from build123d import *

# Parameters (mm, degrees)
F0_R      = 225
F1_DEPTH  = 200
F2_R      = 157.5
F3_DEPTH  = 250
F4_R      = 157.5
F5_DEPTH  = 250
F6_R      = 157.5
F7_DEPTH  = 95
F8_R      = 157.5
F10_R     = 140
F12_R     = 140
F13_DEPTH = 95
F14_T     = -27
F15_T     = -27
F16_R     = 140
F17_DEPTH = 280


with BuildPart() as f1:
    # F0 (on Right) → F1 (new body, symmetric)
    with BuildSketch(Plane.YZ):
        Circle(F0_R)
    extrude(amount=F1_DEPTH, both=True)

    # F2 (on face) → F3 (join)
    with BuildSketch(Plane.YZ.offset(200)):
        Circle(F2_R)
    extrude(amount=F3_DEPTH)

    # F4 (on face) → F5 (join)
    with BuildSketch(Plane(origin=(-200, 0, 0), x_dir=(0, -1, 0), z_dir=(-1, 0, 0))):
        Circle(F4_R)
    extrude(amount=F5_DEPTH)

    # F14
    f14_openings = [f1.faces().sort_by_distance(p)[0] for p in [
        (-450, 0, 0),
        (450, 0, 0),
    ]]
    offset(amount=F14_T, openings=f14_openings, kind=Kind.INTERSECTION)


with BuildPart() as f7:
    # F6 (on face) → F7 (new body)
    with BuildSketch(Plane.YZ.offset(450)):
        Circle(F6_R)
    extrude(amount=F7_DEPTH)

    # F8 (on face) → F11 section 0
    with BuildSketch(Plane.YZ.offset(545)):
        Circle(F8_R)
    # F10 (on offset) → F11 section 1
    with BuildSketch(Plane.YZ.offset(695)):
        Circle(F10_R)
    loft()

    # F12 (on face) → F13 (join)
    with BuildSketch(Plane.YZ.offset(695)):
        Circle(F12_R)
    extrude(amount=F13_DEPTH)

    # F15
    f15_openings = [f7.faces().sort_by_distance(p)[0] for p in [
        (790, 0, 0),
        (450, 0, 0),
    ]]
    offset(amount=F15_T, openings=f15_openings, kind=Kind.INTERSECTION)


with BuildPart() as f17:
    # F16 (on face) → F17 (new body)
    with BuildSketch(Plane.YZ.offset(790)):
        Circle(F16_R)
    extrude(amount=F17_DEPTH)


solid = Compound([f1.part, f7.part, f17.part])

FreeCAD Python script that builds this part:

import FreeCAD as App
import Part
import Sketcher
from FreeCAD import Vector


def faces_at(feature, points):
    """Names of the faces that lie closest to the given points."""
    faces = feature.Shape.Faces
    near = lambda p: min(range(len(faces)), key=lambda i: faces[i].distToShape(Part.Vertex(*p))[0])
    return sorted({f"Face{near(p) + 1}" for p in points})

doc = App.newDocument("Part")
params = doc.addObject("Spreadsheet::Sheet", "Params")
for row, (alias, value) in enumerate([
    ("sketch1_diameter", "450 mm"),
    ("pad1_length", "400 mm"),
    ("sketch2_diameter", "315 mm"),
    ("pad2_length", "250 mm"),
    ("sketch3_diameter", "315 mm"),
    ("pad3_length", "250 mm"),
    ("thickness_wall", "27 mm"),
    ("sketch4_diameter", "315 mm"),
    ("pad4_length", "95 mm"),
    ("sketch5_diameter", "315 mm"),
    ("sketch6_diameter", "280 mm"),
    ("sketch7_diameter", "280 mm"),
    ("pad5_length", "95 mm"),
    ("thickness2_wall", "27 mm"),
    ("sketch8_diameter", "280 mm"),
    ("pad6_length", "280 mm"),
], start=1):
    params.set(f"A{row}", alias)
    params.set(f"B{row}", "=" + value)
    params.setAlias(f"B{row}", alias)

body = doc.addObject("PartDesign::Body", "Body")

sketch1 = body.newObject("Sketcher::SketchObject", "Sketch")
sketch1.AttachmentSupport = (doc.getObject("YZ_Plane"), [""])
sketch1.MapMode = "FlatFace"
sketch1.addGeometry(Part.Circle(Vector(0, 0, 0), Vector(0, 0, 1), 225), False)
sketch1.addConstraint([
    Sketcher.Constraint("Coincident", 0, 3, -1, 1),
    Sketcher.Constraint("Diameter", 0, 450.0),
])
sketch1.setExpression("Constraints[1]", "Params.sketch1_diameter")
pad1 = body.newObject("PartDesign::Pad", "Pad")
pad1.Profile = sketch1
pad1.setExpression("Length", "Params.pad1_length")
pad1.Midplane = True

sketch2 = body.newObject("Sketcher::SketchObject", "Sketch001")
sketch2.AttachmentSupport = (doc.getObject("YZ_Plane"), [""])
sketch2.MapMode = "FlatFace"
sketch2.AttachmentOffset = App.Placement(Vector(0, 0, 200), App.Rotation())
sketch2.addGeometry(Part.Circle(Vector(0, 0, 0), Vector(0, 0, 1), 158), False)
sketch2.addConstraint([
    Sketcher.Constraint("Coincident", 0, 3, -1, 1),
    Sketcher.Constraint("Diameter", 0, 315.0),
])
sketch2.setExpression("Constraints[1]", "Params.sketch2_diameter")
pad2 = body.newObject("PartDesign::Pad", "Pad001")
pad2.Profile = sketch2
pad2.setExpression("Length", "Params.pad2_length")

sketch3 = body.newObject("Sketcher::SketchObject", "Sketch002")
sketch3.AttachmentSupport = (doc.getObject("YZ_Plane"), [""])
sketch3.MapMode = "FlatFace"
sketch3.AttachmentOffset = App.Placement(Vector(0, 0, -200), App.Rotation())
sketch3.addGeometry(Part.Circle(Vector(0, 0, 0), Vector(0, 0, 1), 158), False)
sketch3.addConstraint([
    Sketcher.Constraint("Coincident", 0, 3, -1, 1),
    Sketcher.Constraint("Diameter", 0, 315.0),
])
sketch3.setExpression("Constraints[1]", "Params.sketch3_diameter")
pad3 = body.newObject("PartDesign::Pad", "Pad002")
pad3.Profile = sketch3
pad3.setExpression("Length", "Params.pad3_length")
pad3.Reversed = True
doc.recompute()

thickness = body.newObject("PartDesign::Thickness", "Thickness")
thickness.Base = (pad3, faces_at(pad3, [(-450, 0, 0), (450, 0, 0)]))
thickness.setExpression("Value", "Params.thickness_wall")
thickness.Reversed = True
thickness.Join = "Intersection"
body2 = doc.addObject("PartDesign::Body", "Body001")

sketch4 = body2.newObject("Sketcher::SketchObject", "Sketch003")
sketch4.AttachmentSupport = (doc.getObject("YZ_Plane001"), [""])
sketch4.MapMode = "FlatFace"
sketch4.AttachmentOffset = App.Placement(Vector(0, 0, 450), App.Rotation())
sketch4.addGeometry(Part.Circle(Vector(0, 0, 0), Vector(0, 0, 1), 158), False)
sketch4.addConstraint([
    Sketcher.Constraint("Coincident", 0, 3, -1, 1),
    Sketcher.Constraint("Diameter", 0, 315.0),
])
sketch4.setExpression("Constraints[1]", "Params.sketch4_diameter")
pad4 = body2.newObject("PartDesign::Pad", "Pad003")
pad4.Profile = sketch4
pad4.setExpression("Length", "Params.pad4_length")

sketch5 = body2.newObject("Sketcher::SketchObject", "Sketch004")
sketch5.AttachmentSupport = (doc.getObject("YZ_Plane001"), [""])
sketch5.MapMode = "FlatFace"
sketch5.AttachmentOffset = App.Placement(Vector(0, 0, 545), App.Rotation())
sketch5.addGeometry(Part.Circle(Vector(0, 0, 0), Vector(0, 0, 1), 158), False)
sketch5.addConstraint([
    Sketcher.Constraint("Coincident", 0, 3, -1, 1),
    Sketcher.Constraint("Diameter", 0, 315.0),
])
sketch5.setExpression("Constraints[1]", "Params.sketch5_diameter")

sketch6 = body2.newObject("Sketcher::SketchObject", "Sketch005")
sketch6.AttachmentSupport = (doc.getObject("YZ_Plane001"), [""])
sketch6.MapMode = "FlatFace"
sketch6.AttachmentOffset = App.Placement(Vector(0, 0, 695), App.Rotation())
sketch6.addGeometry(Part.Circle(Vector(0, 0, 0), Vector(0, 0, 1), 140), False)
sketch6.addConstraint([
    Sketcher.Constraint("Coincident", 0, 3, -1, 1),
    Sketcher.Constraint("Diameter", 0, 280.0),
])
sketch6.setExpression("Constraints[1]", "Params.sketch6_diameter")

additiveloft = body2.newObject("PartDesign::AdditiveLoft", "AdditiveLoft")
additiveloft.Profile = sketch5
additiveloft.Sections = [sketch6]

sketch7 = body2.newObject("Sketcher::SketchObject", "Sketch006")
sketch7.AttachmentSupport = (doc.getObject("YZ_Plane001"), [""])
sketch7.MapMode = "FlatFace"
sketch7.AttachmentOffset = App.Placement(Vector(0, 0, 695), App.Rotation())
sketch7.addGeometry(Part.Circle(Vector(0, 0, 0), Vector(0, 0, 1), 140), False)
sketch7.addConstraint([
    Sketcher.Constraint("Coincident", 0, 3, -1, 1),
    Sketcher.Constraint("Diameter", 0, 280.0),
])
sketch7.setExpression("Constraints[1]", "Params.sketch7_diameter")
pad5 = body2.newObject("PartDesign::Pad", "Pad004")
pad5.Profile = sketch7
pad5.setExpression("Length", "Params.pad5_length")
doc.recompute()

thickness2 = body2.newObject("PartDesign::Thickness", "Thickness001")
thickness2.Base = (pad5, faces_at(pad5, [(790, 0, 0), (450, 0, 0)]))
thickness2.setExpression("Value", "Params.thickness2_wall")
thickness2.Reversed = True
thickness2.Join = "Intersection"
body3 = doc.addObject("PartDesign::Body", "Body002")

sketch8 = body3.newObject("Sketcher::SketchObject", "Sketch007")
sketch8.AttachmentSupport = (doc.getObject("YZ_Plane002"), [""])
sketch8.MapMode = "FlatFace"
sketch8.AttachmentOffset = App.Placement(Vector(0, 0, 790), App.Rotation())
sketch8.addGeometry(Part.Circle(Vector(0, 0, 0), Vector(0, 0, 1), 140), False)
sketch8.addConstraint([
    Sketcher.Constraint("Coincident", 0, 3, -1, 1),
    Sketcher.Constraint("Diameter", 0, 280.0),
])
sketch8.setExpression("Constraints[1]", "Params.sketch8_diameter")
pad6 = body3.newObject("PartDesign::Pad", "Pad005")
pad6.Profile = sketch8
pad6.setExpression("Length", "Params.pad6_length")

doc.recompute()
